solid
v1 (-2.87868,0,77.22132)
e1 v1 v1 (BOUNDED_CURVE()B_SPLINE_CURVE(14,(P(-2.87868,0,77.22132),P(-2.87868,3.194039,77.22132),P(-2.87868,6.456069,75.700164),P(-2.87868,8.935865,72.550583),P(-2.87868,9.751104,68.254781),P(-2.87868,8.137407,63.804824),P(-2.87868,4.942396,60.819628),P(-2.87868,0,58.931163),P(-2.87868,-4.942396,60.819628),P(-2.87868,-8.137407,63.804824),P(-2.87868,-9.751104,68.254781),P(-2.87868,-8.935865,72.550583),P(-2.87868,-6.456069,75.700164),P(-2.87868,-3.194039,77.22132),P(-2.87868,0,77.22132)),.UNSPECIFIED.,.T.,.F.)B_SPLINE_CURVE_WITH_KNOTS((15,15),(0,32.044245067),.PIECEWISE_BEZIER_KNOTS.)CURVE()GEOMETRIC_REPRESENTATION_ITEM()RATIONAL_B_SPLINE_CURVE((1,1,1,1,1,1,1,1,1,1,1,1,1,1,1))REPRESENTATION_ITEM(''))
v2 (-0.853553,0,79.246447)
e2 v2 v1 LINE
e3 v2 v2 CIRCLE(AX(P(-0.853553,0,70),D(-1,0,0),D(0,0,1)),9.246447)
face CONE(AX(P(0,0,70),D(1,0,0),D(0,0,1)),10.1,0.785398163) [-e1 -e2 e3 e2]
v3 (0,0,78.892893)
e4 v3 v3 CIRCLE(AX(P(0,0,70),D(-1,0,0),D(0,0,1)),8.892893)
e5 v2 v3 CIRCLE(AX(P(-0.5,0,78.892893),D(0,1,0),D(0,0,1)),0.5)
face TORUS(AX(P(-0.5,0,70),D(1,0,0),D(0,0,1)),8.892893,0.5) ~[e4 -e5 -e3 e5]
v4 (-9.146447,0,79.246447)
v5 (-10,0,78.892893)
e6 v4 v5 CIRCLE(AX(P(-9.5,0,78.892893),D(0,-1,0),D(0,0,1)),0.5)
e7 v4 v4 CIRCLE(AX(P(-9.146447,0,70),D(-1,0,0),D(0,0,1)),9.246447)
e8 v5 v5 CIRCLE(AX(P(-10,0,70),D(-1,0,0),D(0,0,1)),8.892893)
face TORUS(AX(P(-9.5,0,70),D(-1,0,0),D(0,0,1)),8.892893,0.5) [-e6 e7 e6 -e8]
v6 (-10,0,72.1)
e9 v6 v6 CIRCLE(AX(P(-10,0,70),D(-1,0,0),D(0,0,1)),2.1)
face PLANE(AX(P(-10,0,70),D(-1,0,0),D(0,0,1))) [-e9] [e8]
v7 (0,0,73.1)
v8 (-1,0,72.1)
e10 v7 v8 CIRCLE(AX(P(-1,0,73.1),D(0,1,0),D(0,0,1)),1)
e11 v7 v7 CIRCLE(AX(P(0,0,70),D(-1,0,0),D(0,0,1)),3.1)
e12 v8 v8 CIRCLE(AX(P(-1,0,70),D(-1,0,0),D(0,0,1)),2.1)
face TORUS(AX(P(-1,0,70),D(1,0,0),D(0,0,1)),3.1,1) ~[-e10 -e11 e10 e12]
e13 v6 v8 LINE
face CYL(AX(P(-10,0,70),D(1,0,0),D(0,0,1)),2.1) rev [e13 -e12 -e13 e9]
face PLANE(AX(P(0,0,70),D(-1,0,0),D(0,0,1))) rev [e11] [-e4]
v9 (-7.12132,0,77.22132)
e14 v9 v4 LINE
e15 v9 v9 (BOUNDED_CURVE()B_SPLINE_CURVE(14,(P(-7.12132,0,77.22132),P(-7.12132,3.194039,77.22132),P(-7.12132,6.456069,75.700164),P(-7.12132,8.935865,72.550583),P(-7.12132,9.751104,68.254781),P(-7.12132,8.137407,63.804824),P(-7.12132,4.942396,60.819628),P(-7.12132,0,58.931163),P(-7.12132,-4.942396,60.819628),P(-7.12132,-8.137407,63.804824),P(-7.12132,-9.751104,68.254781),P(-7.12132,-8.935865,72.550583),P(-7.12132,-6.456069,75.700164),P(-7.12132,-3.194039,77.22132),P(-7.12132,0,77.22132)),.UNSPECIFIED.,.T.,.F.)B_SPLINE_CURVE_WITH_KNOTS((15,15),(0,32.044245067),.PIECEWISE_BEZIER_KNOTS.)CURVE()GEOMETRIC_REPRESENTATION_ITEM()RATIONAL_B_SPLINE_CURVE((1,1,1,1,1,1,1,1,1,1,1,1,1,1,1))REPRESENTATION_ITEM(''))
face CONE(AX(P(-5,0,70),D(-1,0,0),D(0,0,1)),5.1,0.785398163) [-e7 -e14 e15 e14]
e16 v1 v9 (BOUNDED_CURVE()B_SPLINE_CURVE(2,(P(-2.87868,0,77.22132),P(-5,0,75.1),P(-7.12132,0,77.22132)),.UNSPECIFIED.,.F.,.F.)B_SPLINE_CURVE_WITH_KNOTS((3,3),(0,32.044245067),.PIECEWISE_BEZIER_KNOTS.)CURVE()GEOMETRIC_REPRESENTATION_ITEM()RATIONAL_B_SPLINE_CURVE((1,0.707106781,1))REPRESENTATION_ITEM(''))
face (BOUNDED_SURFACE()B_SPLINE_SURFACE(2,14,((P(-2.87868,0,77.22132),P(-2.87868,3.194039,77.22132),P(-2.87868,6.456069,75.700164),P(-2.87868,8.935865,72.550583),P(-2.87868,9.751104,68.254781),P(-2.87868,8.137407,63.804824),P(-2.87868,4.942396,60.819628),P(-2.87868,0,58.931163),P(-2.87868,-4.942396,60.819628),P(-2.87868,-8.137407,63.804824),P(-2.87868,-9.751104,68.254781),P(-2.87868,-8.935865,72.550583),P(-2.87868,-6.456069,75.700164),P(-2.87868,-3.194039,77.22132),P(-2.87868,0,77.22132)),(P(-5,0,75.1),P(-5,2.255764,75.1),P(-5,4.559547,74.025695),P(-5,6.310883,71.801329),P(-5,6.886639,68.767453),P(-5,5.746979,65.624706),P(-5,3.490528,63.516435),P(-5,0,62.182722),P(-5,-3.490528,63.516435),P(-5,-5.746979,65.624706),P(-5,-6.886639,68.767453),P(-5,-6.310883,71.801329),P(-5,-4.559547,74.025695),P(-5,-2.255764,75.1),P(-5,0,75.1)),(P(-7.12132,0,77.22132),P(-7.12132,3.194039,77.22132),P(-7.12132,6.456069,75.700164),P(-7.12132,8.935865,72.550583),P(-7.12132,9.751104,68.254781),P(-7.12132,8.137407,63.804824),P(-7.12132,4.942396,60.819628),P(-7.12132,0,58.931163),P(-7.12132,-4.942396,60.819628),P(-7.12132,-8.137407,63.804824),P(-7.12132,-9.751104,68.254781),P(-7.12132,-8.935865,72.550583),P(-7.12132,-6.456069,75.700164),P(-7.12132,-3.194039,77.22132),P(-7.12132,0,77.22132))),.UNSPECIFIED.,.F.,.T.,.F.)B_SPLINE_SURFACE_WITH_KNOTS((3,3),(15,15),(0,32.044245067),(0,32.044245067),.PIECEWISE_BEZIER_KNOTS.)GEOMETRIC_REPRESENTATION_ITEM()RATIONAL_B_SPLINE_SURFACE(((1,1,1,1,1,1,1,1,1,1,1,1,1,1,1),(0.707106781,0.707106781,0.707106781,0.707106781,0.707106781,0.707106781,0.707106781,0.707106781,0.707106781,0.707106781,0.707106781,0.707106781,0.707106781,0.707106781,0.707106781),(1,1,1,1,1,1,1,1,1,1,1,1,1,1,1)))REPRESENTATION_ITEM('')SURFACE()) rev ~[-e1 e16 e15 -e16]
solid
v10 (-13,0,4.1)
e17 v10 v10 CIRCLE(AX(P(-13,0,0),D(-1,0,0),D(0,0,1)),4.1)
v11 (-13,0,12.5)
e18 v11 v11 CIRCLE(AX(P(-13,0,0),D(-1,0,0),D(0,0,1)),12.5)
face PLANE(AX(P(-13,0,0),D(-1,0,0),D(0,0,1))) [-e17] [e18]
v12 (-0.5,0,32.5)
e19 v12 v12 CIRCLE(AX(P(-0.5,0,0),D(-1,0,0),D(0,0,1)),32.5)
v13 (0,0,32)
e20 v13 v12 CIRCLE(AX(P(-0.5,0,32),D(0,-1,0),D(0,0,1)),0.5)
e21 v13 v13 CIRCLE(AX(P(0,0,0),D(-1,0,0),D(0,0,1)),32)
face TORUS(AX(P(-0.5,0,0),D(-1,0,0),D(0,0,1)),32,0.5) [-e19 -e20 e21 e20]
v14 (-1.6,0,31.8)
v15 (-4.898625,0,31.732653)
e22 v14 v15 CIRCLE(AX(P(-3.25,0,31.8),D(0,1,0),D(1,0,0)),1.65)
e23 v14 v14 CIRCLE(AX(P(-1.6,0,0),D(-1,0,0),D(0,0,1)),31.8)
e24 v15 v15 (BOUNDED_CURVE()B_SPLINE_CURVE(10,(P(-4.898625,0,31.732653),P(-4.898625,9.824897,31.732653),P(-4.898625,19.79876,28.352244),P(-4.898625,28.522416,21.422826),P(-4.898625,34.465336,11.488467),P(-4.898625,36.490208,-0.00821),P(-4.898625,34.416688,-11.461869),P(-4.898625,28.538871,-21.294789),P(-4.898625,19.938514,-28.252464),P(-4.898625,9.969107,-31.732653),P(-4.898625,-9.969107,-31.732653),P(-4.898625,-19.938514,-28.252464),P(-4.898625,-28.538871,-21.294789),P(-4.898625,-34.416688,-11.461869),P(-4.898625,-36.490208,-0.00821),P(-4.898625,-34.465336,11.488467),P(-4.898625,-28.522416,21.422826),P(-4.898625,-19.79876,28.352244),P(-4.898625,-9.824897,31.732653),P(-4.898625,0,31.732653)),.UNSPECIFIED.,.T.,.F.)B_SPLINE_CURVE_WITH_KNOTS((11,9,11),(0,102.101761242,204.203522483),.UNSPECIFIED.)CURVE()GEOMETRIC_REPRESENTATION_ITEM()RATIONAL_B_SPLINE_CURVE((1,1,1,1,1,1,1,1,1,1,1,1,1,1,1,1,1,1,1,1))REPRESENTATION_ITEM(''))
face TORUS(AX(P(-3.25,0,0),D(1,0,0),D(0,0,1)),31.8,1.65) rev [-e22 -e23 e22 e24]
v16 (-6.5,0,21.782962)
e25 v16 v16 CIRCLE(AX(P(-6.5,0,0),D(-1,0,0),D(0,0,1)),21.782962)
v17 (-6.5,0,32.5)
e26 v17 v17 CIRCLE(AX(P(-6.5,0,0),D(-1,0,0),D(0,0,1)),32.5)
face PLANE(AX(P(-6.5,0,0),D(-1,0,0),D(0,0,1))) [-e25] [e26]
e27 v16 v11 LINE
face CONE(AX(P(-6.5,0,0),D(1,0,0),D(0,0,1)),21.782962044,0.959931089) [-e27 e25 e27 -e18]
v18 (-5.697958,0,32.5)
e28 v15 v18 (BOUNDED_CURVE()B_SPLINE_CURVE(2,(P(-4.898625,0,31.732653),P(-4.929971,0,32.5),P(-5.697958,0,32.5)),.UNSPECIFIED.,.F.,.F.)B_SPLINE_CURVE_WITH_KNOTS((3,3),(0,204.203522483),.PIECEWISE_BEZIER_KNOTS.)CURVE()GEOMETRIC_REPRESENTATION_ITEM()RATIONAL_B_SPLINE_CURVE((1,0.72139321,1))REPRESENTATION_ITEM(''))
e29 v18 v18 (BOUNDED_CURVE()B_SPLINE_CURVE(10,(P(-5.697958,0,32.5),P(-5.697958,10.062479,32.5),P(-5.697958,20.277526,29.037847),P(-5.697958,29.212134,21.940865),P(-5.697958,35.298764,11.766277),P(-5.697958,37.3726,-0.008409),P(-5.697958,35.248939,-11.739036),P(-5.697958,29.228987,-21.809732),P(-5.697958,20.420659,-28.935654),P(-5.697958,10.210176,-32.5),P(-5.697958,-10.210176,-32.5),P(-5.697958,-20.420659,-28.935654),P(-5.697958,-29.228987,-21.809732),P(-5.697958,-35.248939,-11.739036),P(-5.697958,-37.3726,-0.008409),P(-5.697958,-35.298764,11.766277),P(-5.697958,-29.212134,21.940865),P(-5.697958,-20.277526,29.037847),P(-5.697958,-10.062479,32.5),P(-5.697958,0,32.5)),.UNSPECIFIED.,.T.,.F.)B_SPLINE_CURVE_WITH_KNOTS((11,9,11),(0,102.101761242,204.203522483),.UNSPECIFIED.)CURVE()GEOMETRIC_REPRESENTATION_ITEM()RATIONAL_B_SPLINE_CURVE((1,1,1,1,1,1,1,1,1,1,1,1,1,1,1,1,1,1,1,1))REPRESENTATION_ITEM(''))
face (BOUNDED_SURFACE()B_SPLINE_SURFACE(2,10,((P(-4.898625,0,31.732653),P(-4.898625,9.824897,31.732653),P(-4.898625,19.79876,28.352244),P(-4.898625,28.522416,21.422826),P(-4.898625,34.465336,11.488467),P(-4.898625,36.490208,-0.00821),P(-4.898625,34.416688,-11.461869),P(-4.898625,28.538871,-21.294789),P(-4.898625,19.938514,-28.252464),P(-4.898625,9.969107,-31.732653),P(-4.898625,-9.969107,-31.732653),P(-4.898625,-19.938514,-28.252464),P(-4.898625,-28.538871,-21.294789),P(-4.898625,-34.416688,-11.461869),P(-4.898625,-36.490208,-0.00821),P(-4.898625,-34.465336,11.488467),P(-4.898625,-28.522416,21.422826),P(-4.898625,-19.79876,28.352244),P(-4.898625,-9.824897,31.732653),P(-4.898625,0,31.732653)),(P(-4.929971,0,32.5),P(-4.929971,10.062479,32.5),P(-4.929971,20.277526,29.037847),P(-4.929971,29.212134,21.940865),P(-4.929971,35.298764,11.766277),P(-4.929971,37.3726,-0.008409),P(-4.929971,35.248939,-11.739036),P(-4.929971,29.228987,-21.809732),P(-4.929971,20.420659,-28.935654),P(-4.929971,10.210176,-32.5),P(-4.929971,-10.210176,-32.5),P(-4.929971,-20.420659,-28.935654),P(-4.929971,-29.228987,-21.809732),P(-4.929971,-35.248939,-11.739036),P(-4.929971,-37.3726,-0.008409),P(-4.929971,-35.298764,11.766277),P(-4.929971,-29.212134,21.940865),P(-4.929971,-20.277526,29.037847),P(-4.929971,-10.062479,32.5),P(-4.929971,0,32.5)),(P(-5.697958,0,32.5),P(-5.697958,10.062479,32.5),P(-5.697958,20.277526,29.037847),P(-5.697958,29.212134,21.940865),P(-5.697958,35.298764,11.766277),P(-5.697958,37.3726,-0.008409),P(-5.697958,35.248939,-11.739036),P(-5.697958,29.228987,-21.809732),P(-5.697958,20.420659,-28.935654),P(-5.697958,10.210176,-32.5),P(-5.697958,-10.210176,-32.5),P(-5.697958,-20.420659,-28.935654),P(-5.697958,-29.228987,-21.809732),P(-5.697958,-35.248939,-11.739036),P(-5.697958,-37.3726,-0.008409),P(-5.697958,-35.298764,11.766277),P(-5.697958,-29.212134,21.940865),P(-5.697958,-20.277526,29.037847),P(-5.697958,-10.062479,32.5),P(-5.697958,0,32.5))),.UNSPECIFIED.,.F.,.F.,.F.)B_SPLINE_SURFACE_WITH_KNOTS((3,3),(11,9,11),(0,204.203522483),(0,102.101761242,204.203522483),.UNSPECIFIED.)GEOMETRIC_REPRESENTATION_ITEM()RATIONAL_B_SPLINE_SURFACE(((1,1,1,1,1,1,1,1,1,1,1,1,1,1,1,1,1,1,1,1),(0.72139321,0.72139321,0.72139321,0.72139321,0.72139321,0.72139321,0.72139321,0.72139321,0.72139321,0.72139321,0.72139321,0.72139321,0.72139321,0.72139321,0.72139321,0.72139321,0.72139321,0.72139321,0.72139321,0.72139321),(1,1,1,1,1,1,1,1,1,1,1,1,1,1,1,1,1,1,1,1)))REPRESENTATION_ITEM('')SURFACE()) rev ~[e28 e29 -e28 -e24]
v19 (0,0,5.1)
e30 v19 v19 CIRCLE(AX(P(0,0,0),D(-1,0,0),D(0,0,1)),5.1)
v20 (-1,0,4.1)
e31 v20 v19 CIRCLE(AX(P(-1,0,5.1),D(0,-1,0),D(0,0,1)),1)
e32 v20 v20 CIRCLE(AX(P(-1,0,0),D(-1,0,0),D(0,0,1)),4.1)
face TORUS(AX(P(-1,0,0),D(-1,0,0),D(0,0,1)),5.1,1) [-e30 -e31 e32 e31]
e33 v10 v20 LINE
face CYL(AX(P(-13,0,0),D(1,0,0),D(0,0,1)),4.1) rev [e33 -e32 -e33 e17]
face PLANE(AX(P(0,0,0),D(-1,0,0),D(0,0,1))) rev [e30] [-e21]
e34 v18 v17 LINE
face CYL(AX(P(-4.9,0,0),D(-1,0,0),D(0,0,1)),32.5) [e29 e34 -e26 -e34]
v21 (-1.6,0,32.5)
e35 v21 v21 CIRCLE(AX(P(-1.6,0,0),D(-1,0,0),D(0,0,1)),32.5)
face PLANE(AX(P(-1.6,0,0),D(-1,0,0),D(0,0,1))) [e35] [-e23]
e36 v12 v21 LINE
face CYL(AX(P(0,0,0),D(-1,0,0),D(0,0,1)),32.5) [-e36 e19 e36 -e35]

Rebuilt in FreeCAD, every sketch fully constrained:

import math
import FreeCAD as App
import Part
import Sketcher
Q = App.Units.Quantity


def edges_at(feature, points):
    """Names of the edges that pass closest to the given points."""
    edges = feature.Shape.Edges
    near = lambda p: min(range(len(edges)), key=lambda i: edges[i].distToShape(Part.Vertex(*p))[0])
    return sorted({f"Edge{near(p) + 1}" for p in points})

doc = App.newDocument("Part")
body = doc.addObject("PartDesign::Body", "Body")

sketch1 = body.newObject("Sketcher::SketchObject", "Sketch")
sketch1.AttachmentSupport = (doc.getObject("XZ_Plane"), [""])
sketch1.MapMode = "FlatFace"
sketch1.addGeometry(Part.LineSegment(App.Vector(-13, 4.1, 0), App.Vector(0, 4.1, 0)), False)
sketch1.addGeometry(Part.LineSegment(App.Vector(0, 4.1, 0), App.Vector(0, 32.5, 0)), False)
sketch1.addGeometry(Part.LineSegment(App.Vector(0, 32.5, 0), App.Vector(-1.6, 32.5, 0)), False)
sketch1.addGeometry(Part.LineSegment(App.Vector(-1.6, 32.5, 0), App.Vector(-1.6, 31.8, 0)), False)
sketch1.addGeometry(Part.ArcOfCircle(Part.Circle(App.Vector(-3.2, 31.8, 0), App.Vector(0, 0, 1), 1.6), math.radians(180), math.radians(360)), False)
sketch1.addGeometry(Part.LineSegment(App.Vector(-4.9, 31.8, 0), App.Vector(-4.9, 32.5, 0)), False)
sketch1.addGeometry(Part.LineSegment(App.Vector(-4.9, 32.5, 0), App.Vector(-6.5, 32.5, 0)), False)
sketch1.addGeometry(Part.LineSegment(App.Vector(-6.5, 32.5, 0), App.Vector(-6.5, 21.8, 0)), False)
sketch1.addGeometry(Part.LineSegment(App.Vector(-6.5, 21.8, 0), App.Vector(-13, 12.5, 0)), False)
sketch1.addGeometry(Part.LineSegment(App.Vector(-13, 12.5, 0), App.Vector(-13, 4.1, 0)), False)
sketch1.addConstraint(Sketcher.Constraint("Coincident", 0, 2, 1, 1))
sketch1.addConstraint(Sketcher.Constraint("Coincident", 1, 2, 2, 1))
sketch1.addConstraint(Sketcher.Constraint("Coincident", 2, 2, 3, 1))
sketch1.addConstraint(Sketcher.Constraint("Tangent", 3, 2, 4, 2))
sketch1.addConstraint(Sketcher.Constraint("Tangent", 4, 1, 5, 1))
sketch1.addConstraint(Sketcher.Constraint("Coincident", 5, 2, 6, 1))
sketch1.addConstraint(Sketcher.Constraint("Coincident", 6, 2, 7, 1))
sketch1.addConstraint(Sketcher.Constraint("Coincident", 7, 2, 8, 1))
sketch1.addConstraint(Sketcher.Constraint("Coincident", 8, 2, 9, 1))
sketch1.addConstraint(Sketcher.Constraint("Coincident", 9, 2, 0, 1))
sketch1.addConstraint(Sketcher.Constraint("Horizontal", 0))
sketch1.addConstraint(Sketcher.Constraint("Vertical", 1))
sketch1.addConstraint(Sketcher.Constraint("Horizontal", 2))
sketch1.addConstraint(Sketcher.Constraint("Vertical", 3))
sketch1.addConstraint(Sketcher.Constraint("Vertical", 5))
sketch1.addConstraint(Sketcher.Constraint("Horizontal", 6))
sketch1.addConstraint(Sketcher.Constraint("Vertical", 7))
sketch1.addConstraint(Sketcher.Constraint("Vertical", 9))
sketch1.addConstraint(Sketcher.Constraint("PointOnObject", 0, 2, -2))
sketch1.addConstraint(Sketcher.Constraint("Horizontal", 2, 2, 5, 2))
sketch1.addConstraint(Sketcher.Constraint("Equal", 2, 6))
sketch1.addConstraint(Sketcher.Constraint("DistanceX", 0, 1, 0, 2, 13.0))
sketch1.addConstraint(Sketcher.Constraint("Angle", 8, Q("-125 deg")))
sketch1.addConstraint(Sketcher.Constraint("Radius", 4, 1.65))
sketch1.addConstraint(Sketcher.Constraint("DistanceX", 2, 2, 2, 1, 1.6))
sketch1.addConstraint(Sketcher.Constraint("DistanceY", 1, 1, 1, 2, 28.4))
sketch1.addConstraint(Sketcher.Constraint("DistanceY", 3, 2, 3, 1, 0.7))
sketch1.addConstraint(Sketcher.Constraint("DistanceY", 9, 2, 9, 1, 8.4))
sketch1.addConstraint(Sketcher.Constraint("DistanceY", -1, 1, 4, 3, 31.8))
revolution = body.newObject("PartDesign::Revolution", "Revolution")
revolution.Profile = sketch1
revolution.ReferenceAxis = (sketch1, ["H_Axis"])
revolution.Angle = 360
doc.recompute()

fillet = body.newObject("PartDesign::Fillet", "Fillet")
fillet.Base = (revolution, edges_at(revolution, [(0, 0, -4.1)]))
fillet.Radius = 1
doc.recompute()

fillet2 = body.newObject("PartDesign::Fillet", "Fillet001")
fillet2.Base = (fillet, edges_at(fillet, [(0, 0, -32.5)]))
fillet2.Radius = 0.5
doc.recompute()

fillet3 = body.newObject("PartDesign::Fillet", "Fillet002")
fillet3.Base = (fillet2, edges_at(fillet2, [(-4.9, 0, -32.5)]))
fillet3.Radius = 0.8
body2 = doc.addObject("PartDesign::Body", "Body001")

sketch2 = body2.newObject("Sketcher::SketchObject", "Sketch001")
sketch2.AttachmentSupport = (doc.getObject("XZ_Plane001"), [""])
sketch2.MapMode = "FlatFace"
sketch2.addGeometry(Part.LineSegment(App.Vector(-10, 72, 0), App.Vector(0, 72, 0)), False)
sketch2.addGeometry(Part.LineSegment(App.Vector(0, 72, 0), App.Vector(0, 80, 0)), False)
sketch2.addGeometry(Part.LineSegment(App.Vector(0, 80, 0), App.Vector(-5, 75, 0)), False)
sketch2.addGeometry(Part.LineSegment(App.Vector(-5, 75, 0), App.Vector(-10, 80, 0)), False)
sketch2.addGeometry(Part.LineSegment(App.Vector(-10, 80, 0), App.Vector(-10, 72, 0)), False)
sketch2.addGeometry(Part.LineSegment(App.Vector(0, 70, 0), App.Vector(-10, 70, 0)), True)
sketch2.addConstraint(Sketcher.Constraint("Coincident", 0, 2, 1, 1))
sketch2.addConstraint(Sketcher.Constraint("Coincident", 1, 2, 2, 1))
sketch2.addConstraint(Sketcher.Constraint("Coincident", 2, 2, 3, 1))
sketch2.addConstraint(Sketcher.Constraint("Coincident", 3, 2, 4, 1))
sketch2.addConstraint(Sketcher.Constraint("Coincident", 4, 2, 0, 1))
sketch2.addConstraint(Sketcher.Constraint("Horizontal", 0))
sketch2.addConstraint(Sketcher.Constraint("Vertical", 1))
sketch2.addConstraint(Sketcher.Constraint("Vertical", 4))
sketch2.addConstraint(Sketcher.Constraint("Horizontal", 5))
sketch2.addConstraint(Sketcher.Constraint("PointOnObject", 0, 2, -2))
sketch2.addConstraint(Sketcher.Constraint("PointOnObject", 5, 1, -2))
sketch2.addConstraint(Sketcher.Constraint("Perpendicular", 2, 3))
sketch2.addConstraint(Sketcher.Constraint("Horizontal", 1, 2, 3, 2))
sketch2.addConstraint(Sketcher.Constraint("Vertical", 4, 2, 5, 2))
sketch2.addConstraint(Sketcher.Constraint("Equal", 2, 3))
sketch2.addConstraint(Sketcher.Constraint("DistanceX", 0, 1, 0, 2, 10.0))
sketch2.addConstraint(Sketcher.Constraint("DistanceY", 1, 1, 1, 2, 8.0))
sketch2.addConstraint(Sketcher.Constraint("DistanceY", -1, 1, 5, 1, 70.0))
sketch2.addConstraint(Sketcher.Constraint("DistanceY", -1, 1, 0, 2, 72.1))
revolution2 = body2.newObject("PartDesign::Revolution", "Revolution001")
revolution2.Profile = sketch2
revolution2.ReferenceAxis = (sketch2, ["Axis0"])
revolution2.Angle = 360
doc.recompute()

fillet4 = body2.newObject("PartDesign::Fillet", "Fillet003")
fillet4.Base = (revolution2, edges_at(revolution2, [(-5, 0, 64.9)]))
fillet4.Radius = 3
doc.recompute()

fillet5 = body2.newObject("PartDesign::Fillet", "Fillet004")
fillet5.Base = (fillet4, edges_at(fillet4, [(0, 0, 59.9), (-10, 0, 59.9)]))
fillet5.Radius = 0.5
doc.recompute()

fillet6 = body2.newObject("PartDesign::Fillet", "Fillet005")
fillet6.Base = (fillet5, edges_at(fillet5, [(0, 0, 67.9)]))
fillet6.Radius = 1

doc.recompute()
